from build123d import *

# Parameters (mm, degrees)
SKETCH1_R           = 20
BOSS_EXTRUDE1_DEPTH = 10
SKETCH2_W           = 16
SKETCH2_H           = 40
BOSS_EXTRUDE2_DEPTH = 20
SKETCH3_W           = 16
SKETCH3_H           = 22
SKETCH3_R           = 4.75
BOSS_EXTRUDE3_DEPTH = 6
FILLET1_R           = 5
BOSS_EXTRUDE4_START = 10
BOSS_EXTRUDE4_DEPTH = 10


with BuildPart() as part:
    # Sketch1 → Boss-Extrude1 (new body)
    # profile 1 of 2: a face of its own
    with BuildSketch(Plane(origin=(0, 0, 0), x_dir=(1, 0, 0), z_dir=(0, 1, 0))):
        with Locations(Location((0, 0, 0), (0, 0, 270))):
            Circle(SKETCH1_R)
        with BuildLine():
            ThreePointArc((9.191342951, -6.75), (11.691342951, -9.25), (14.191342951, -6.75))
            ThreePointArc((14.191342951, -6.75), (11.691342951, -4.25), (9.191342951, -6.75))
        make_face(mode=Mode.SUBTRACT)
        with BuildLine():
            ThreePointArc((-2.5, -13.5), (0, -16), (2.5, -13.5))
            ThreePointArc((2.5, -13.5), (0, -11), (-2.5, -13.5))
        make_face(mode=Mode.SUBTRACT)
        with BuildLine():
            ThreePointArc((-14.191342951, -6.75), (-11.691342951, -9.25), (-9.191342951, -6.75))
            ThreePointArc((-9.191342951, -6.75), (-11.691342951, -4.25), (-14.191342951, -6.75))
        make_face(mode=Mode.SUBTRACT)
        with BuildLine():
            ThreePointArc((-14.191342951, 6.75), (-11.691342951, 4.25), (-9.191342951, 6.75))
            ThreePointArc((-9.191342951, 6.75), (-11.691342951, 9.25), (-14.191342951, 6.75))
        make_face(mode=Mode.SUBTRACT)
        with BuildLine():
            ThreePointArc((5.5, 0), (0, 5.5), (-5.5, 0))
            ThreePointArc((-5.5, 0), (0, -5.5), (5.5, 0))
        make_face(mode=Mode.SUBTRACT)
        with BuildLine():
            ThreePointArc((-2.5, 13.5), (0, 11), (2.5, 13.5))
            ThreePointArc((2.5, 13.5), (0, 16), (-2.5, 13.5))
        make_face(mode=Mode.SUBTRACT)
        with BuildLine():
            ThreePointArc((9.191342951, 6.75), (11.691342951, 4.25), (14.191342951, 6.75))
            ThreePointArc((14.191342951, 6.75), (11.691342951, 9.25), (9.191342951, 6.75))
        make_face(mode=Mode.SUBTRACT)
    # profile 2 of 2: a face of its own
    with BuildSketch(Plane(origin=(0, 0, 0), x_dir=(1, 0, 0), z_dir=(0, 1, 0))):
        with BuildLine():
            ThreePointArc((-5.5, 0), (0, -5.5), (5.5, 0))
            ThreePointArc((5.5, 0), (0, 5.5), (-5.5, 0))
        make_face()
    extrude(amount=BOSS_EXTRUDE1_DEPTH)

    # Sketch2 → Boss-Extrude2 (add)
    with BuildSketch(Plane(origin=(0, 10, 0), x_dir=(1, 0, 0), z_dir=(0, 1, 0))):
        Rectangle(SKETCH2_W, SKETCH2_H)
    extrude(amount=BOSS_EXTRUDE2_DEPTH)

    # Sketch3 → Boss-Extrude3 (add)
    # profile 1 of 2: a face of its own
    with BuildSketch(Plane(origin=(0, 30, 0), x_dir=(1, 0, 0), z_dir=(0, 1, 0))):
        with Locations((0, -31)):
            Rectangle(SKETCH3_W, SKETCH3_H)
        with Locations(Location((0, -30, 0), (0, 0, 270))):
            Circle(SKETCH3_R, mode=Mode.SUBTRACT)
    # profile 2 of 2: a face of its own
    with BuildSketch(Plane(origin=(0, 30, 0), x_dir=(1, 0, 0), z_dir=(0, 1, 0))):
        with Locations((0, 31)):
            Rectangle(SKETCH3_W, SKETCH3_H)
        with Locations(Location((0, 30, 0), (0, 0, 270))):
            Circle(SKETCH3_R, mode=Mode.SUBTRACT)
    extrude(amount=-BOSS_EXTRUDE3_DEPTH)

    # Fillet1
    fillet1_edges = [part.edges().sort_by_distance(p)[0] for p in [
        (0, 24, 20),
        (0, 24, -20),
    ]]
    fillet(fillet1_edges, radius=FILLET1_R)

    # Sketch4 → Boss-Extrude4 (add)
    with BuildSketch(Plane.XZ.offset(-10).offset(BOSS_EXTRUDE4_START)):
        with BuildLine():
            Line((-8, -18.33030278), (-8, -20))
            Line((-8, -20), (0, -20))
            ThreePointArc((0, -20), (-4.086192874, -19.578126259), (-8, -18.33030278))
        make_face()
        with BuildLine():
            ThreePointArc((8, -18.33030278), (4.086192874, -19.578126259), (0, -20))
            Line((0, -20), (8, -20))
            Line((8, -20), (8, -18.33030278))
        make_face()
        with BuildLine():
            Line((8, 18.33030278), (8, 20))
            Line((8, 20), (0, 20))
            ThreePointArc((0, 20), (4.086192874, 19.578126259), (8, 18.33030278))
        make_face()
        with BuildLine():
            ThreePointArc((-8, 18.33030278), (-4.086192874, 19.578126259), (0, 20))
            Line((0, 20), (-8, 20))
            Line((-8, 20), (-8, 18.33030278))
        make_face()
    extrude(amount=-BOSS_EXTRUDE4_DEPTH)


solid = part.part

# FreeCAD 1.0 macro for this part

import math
import FreeCAD as App
import Part
import Sketcher


def edges_at(feature, points):
    """Names of the edges that pass closest to the given points."""
    edges = feature.Shape.Edges
    near = lambda p: min(range(len(edges)), key=lambda i: edges[i].distToShape(Part.Vertex(*p))[0])
    return sorted({f"Edge{near(p) + 1}" for p in points})

doc = App.newDocument("Part")
body = doc.addObject("PartDesign::Body", "Body")

sketch1 = body.newObject("Sketcher::SketchObject", "Sketch")
sketch1.AttachmentSupport = (doc.getObject("XZ_Plane"), [""])
sketch1.MapMode = "FlatFace"
sketch1.addGeometry([
    Part.Circle(App.Vector(0, 0, 0), App.Vector(0, 0, 1), 20),
    Part.Circle(App.Vector(-11.7, -6.8, 0), App.Vector(0, 0, 1), 2.5),
    Part.Circle(App.Vector(0, -13.5, 0), App.Vector(0, 0, 1), 2.5),
    Part.Circle(App.Vector(-11.7, 6.8, 0), App.Vector(0, 0, 1), 2.5),
    Part.Circle(App.Vector(11.7, -6.8, 0), App.Vector(0, 0, 1), 2.5),
    Part.Circle(App.Vector(0, 13.5, 0), App.Vector(0, 0, 1), 2.5),
    Part.Circle(App.Vector(11.7, 6.8, 0), App.Vector(0, 0, 1), 2.5),
], False)
sketch1.addConstraint([
    Sketcher.Constraint("Coincident", 0, 3, -1, 1),
    Sketcher.Constraint("Equal", 1, 2),
    Sketcher.Constraint("Equal", 2, 3),
    Sketcher.Constraint("Equal", 3, 4),
    Sketcher.Constraint("Equal", 4, 5),
    Sketcher.Constraint("Equal", 5, 6),
    Sketcher.Constraint("Symmetric", 3, 3, 4, 3, -1, 1),
    Sketcher.Constraint("Symmetric", 2, 3, 5, 3, -1, 1),
    Sketcher.Constraint("Symmetric", 1, 3, 6, 3, -1, 1),
    Sketcher.Constraint("Symmetric", 1, 3, 4, 3, -2),
    Sketcher.Constraint("PointOnObject", 2, 3, -2),
    Sketcher.Constraint("Diameter", 0, 40.0),
    Sketcher.Constraint("Diameter", 1, 5.0),
    Sketcher.Constraint("DistanceY", 2, 3, 5, 3, 27.0),
    Sketcher.Constraint("DistanceY", 1, 3, 3, 3, 13.5),
    Sketcher.Constraint("DistanceX", 1, 3, -1, 1, 11.691343),
])
pad1 = body.newObject("PartDesign::Pad", "Pad")
pad1.Profile = sketch1
pad1.Length = 10
pad1.Reversed = True

sketch2 = body.newObject("Sketcher::SketchObject", "Sketch001")
sketch2.AttachmentSupport = (doc.getObject("XZ_Plane"), [""])
sketch2.MapMode = "FlatFace"
sketch2.AttachmentOffset = App.Placement(App.Vector(0, 0, -10), App.Rotation())
sketch2.addGeometry([
    Part.LineSegment(App.Vector(-8, -20, 0), App.Vector(-8, 20, 0)),
    Part.LineSegment(App.Vector(-8, 20, 0), App.Vector(8, 20, 0)),
    Part.LineSegment(App.Vector(8, 20, 0), App.Vector(8, -20, 0)),
    Part.LineSegment(App.Vector(8, -20, 0), App.Vector(-8, -20, 0)),
], False)
sketch2.addConstraint([
    Sketcher.Constraint("Coincident", 0, 2, 1, 1),
    Sketcher.Constraint("Coincident", 1, 2, 2, 1),
    Sketcher.Constraint("Coincident", 2, 2, 3, 1),
    Sketcher.Constraint("Coincident", 3, 2, 0, 1),
    Sketcher.Constraint("Vertical", 0),
    Sketcher.Constraint("Horizontal", 1),
    Sketcher.Constraint("Vertical", 2),
    Sketcher.Constraint("Horizontal", 3),
    Sketcher.Constraint("Symmetric", 0, 2, 2, 2, -1, 1),
    Sketcher.Constraint("DistanceX", 1, 1, 1, 2, 16.0),
    Sketcher.Constraint("DistanceY", 0, 1, 0, 2, 40.0),
])
pad2 = body.newObject("PartDesign::Pad", "Pad001")
pad2.Profile = sketch2
pad2.Length = 20
pad2.Reversed = True

sketch3 = body.newObject("Sketcher::SketchObject", "Sketch002")
sketch3.AttachmentSupport = (doc.getObject("XZ_Plane"), [""])
sketch3.MapMode = "FlatFace"
sketch3.AttachmentOffset = App.Placement(App.Vector(0, 0, -30), App.Rotation())
sketch3.addGeometry([
    Part.LineSegment(App.Vector(-8, 20, 0), App.Vector(-8, 42, 0)),
    Part.LineSegment(App.Vector(-8, 42, 0), App.Vector(8, 42, 0)),
    Part.LineSegment(App.Vector(8, 42, 0), App.Vector(8, 20, 0)),
    Part.LineSegment(App.Vector(8, 20, 0), App.Vector(-8, 20, 0)),
    Part.Circle(App.Vector(0, 30, 0), App.Vector(0, 0, 1), 4.8),
    Part.LineSegment(App.Vector(-8, -42, 0), App.Vector(-8, -20, 0)),
    Part.LineSegment(App.Vector(-8, -20, 0), App.Vector(8, -20, 0)),
    Part.LineSegment(App.Vector(8, -20, 0), App.Vector(8, -42, 0)),
    Part.LineSegment(App.Vector(8, -42, 0), App.Vector(-8, -42, 0)),
    Part.Circle(App.Vector(0, -30, 0), App.Vector(0, 0, 1), 4.8),
], False)
sketch3.addConstraint([
    Sketcher.Constraint("Coincident", 0, 2, 1, 1),
    Sketcher.Constraint("Coincident", 1, 2, 2, 1),
    Sketcher.Constraint("Coincident", 2, 2, 3, 1),
    Sketcher.Constraint("Coincident", 3, 2, 0, 1),
    Sketcher.Constraint("Coincident", 5, 2, 6, 1),
    Sketcher.Constraint("Coincident", 6, 2, 7, 1),
    Sketcher.Constraint("Coincident", 7, 2, 8, 1),
    Sketcher.Constraint("Coincident", 8, 2, 5, 1),
    Sketcher.Constraint("Vertical", 0),
    Sketcher.Constraint("Horizontal", 1),
    Sketcher.Constraint("Vertical", 2),
    Sketcher.Constraint("Horizontal", 3),
    Sketcher.Constraint("Vertical", 5),
    Sketcher.Constraint("Horizontal", 6),
    Sketcher.Constraint("Vertical", 7),
    Sketcher.Constraint("Horizontal", 8),
    Sketcher.Constraint("Equal", 4, 9),
    Sketcher.Constraint("Symmetric", 4, 3, 9, 3, -1, 1),
    Sketcher.Constraint("Symmetric", 2, 2, 5, 2, -1, 1),
    Sketcher.Constraint("Symmetric", 0, 2, 7, 2, -1, 1),
    Sketcher.Constraint("PointOnObject", 4, 3, -2),
    Sketcher.Constraint("Vertical", 3, 2, 5, 2),
    Sketcher.Constraint("Diameter", 4, 9.5),
    Sketcher.Constraint("DistanceX", 1, 1, 1, 2, 16.0),
    Sketcher.Constraint("DistanceY", 0, 1, 0, 2, 22.0),
    Sketcher.Constraint("DistanceY", -1, 1, 4, 3, 30.0),
    Sketcher.Constraint("DistanceY", -1, 1, 0, 2, 42.0),
])
pad3 = body.newObject("PartDesign::Pad", "Pad002")
pad3.Profile = sketch3
pad3.Length = 6
doc.recompute()

fillet = body.newObject("PartDesign::Fillet", "Fillet")
fillet.Base = (pad3, edges_at(pad3, [(0, 24, 20), (0, 24, -20)]))
fillet.Radius = 5

sketch4 = body.newObject("Sketcher::SketchObject", "Sketch003")
sketch4.AttachmentSupport = (doc.getObject("XZ_Plane"), [""])
sketch4.MapMode = "FlatFace"
sketch4.addGeometry([
    Part.LineSegment(App.Vector(-8, -18.3, 0), App.Vector(-8, -20, 0)),
    Part.LineSegment(App.Vector(-8, -20, 0), App.Vector(0, -20, 0)),
    Part.ArcOfCircle(Part.Circle(App.Vector(0, 0, 0), App.Vector(0, 0, 1), 20), math.radians(-114), math.radians(-90)),
    Part.ArcOfCircle(Part.Circle(App.Vector(0, 0, 0), App.Vector(0, 0, 1), 20), math.radians(-90), math.radians(-66)),
    Part.LineSegment(App.Vector(0, -20, 0), App.Vector(8, -20, 0)),
    Part.LineSegment(App.Vector(8, -20, 0), App.Vector(8, -18.3, 0)),
    Part.LineSegment(App.Vector(8, 18.3, 0), App.Vector(8, 20, 0)),
    Part.LineSegment(App.Vector(8, 20, 0), App.Vector(0, 20, 0)),
    Part.ArcOfCircle(Part.Circle(App.Vector(0, 0, 0), App.Vector(0, 0, 1), 20), math.radians(66), math.radians(90)),
    Part.ArcOfCircle(Part.Circle(App.Vector(0, 0, 0), App.Vector(0, 0, 1), 20), math.radians(90), math.radians(114)),
    Part.LineSegment(App.Vector(0, 20, 0), App.Vector(-8, 20, 0)),
    Part.LineSegment(App.Vector(-8, 20, 0), App.Vector(-8, 18.3, 0)),
], False)
sketch4.addConstraint([
    Sketcher.Constraint("Coincident", 0, 2, 1, 1),
    Sketcher.Constraint("Tangent", 1, 2, 2, 2),
    Sketcher.Constraint("Coincident", 2, 1, 0, 1),
    Sketcher.Constraint("Tangent", 3, 1, 4, 1),
    Sketcher.Constraint("Coincident", 4, 2, 5, 1),
    Sketcher.Constraint("Coincident", 5, 2, 3, 2),
    Sketcher.Constraint("Coincident", 6, 2, 7, 1),
    Sketcher.Constraint("Tangent", 7, 2, 8, 2),
    Sketcher.Constraint("Coincident", 8, 1, 6, 1),
    Sketcher.Constraint("Tangent", 9, 1, 10, 1),
    Sketcher.Constraint("Coincident", 10, 2, 11, 1),
    Sketcher.Constraint("Coincident", 11, 2, 9, 2),
    Sketcher.Constraint("Vertical", 0),
    Sketcher.Constraint("Horizontal", 1),
    Sketcher.Constraint("Horizontal", 4),
    Sketcher.Constraint("Vertical", 5),
    Sketcher.Constraint("Vertical", 6),
    Sketcher.Constraint("Horizontal", 7),
    Sketcher.Constraint("Horizontal", 10),
    Sketcher.Constraint("Vertical", 11),
    Sketcher.Constraint("Coincident", 2, 3, -1, 1),
    Sketcher.Constraint("Coincident", 3, 3, -1, 1),
    Sketcher.Constraint("Coincident", 8, 3, -1, 1),
    Sketcher.Constraint("Coincident", 9, 3, -1, 1),
    Sketcher.Constraint("Equal", 2, 3),
    Sketcher.Constraint("Equal", 3, 8),
    Sketcher.Constraint("Equal", 8, 9),
    Sketcher.Constraint("Horizontal", 2, 1, 5, 2),
    Sketcher.Constraint("Horizontal", 8, 1, 11, 2),
    Sketcher.Constraint("Vertical", 5, 2, 6, 2),
    Sketcher.Constraint("Radius", 2, 20.0),
    Sketcher.Constraint("DistanceX", 1, 1, 1, 2, 8.0),
])
pad4 = body.newObject("PartDesign::Pad", "Pad003")
pad4.Profile = sketch4
pad4.Length = 10
pad4.Reversed = True

doc.recompute()
